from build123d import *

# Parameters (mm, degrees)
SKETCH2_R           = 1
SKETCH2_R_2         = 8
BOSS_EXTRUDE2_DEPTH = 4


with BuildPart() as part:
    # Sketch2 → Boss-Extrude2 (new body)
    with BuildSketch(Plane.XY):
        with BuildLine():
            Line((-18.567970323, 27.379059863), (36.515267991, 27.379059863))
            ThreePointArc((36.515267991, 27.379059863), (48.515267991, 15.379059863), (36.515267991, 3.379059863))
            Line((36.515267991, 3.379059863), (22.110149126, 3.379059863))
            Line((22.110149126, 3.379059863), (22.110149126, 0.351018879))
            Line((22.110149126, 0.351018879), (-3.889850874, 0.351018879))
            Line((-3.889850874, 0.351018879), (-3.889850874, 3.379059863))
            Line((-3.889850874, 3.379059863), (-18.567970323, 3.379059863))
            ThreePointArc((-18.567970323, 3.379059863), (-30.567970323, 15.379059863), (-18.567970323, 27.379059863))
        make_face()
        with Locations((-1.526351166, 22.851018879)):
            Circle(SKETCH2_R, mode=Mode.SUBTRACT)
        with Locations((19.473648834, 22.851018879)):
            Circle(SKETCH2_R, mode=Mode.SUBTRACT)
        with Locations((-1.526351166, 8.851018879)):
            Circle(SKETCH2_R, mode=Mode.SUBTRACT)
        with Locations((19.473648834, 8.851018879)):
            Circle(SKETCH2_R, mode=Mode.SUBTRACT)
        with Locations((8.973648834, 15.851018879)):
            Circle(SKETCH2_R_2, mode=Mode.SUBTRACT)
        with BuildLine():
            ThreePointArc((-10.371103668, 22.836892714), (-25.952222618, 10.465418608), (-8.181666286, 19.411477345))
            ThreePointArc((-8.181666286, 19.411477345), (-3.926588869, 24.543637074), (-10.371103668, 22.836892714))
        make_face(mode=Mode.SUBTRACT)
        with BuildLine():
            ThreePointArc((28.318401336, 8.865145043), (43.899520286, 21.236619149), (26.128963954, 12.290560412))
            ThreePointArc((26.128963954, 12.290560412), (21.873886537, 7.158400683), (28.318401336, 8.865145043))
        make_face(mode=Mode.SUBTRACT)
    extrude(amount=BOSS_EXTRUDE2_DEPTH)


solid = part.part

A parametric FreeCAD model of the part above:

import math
import FreeCAD as App
import Part
import Sketcher
from FreeCAD import Vector
Q = App.Units.Quantity

doc = App.newDocument("Part")
body = doc.addObject("PartDesign::Body", "Body")

# Sketch on XY plane
sketch1 = body.newObject("Sketcher::SketchObject", "Sketch")
sketch1.AttachmentSupport = (doc.getObject("XY_Plane"), [""])
sketch1.MapMode = "FlatFace"
sketch1.addGeometry([
    Part.LineSegment(Vector(36.515268, 27.37906, 0), Vector(-18.56797, 27.37906, 0)),  # 0
    Part.ArcOfCircle(Part.Circle(Vector(-18.56797, 15.37906, 0), Vector(0, 0, 1), 12), math.radians(90), math.radians(270)),  # 1
    Part.LineSegment(Vector(-18.56797, 3.37906, 0), Vector(-3.889851, 3.37906, 0)),  # 2
    Part.LineSegment(Vector(-3.889851, 3.37906, 0), Vector(-3.889851, 0.351019, 0)),  # 3
    Part.LineSegment(Vector(-3.889851, 0.351019, 0), Vector(22.110149, 0.351019, 0)),  # 4
    Part.LineSegment(Vector(22.110149, 0.351019, 0), Vector(22.110149, 3.37906, 0)),  # 5
    Part.LineSegment(Vector(22.110149, 3.37906, 0), Vector(36.515268, 3.37906, 0)),  # 6
    Part.ArcOfCircle(Part.Circle(Vector(36.515268, 15.37906, 0), Vector(0, 0, 1), 12), math.radians(-90), math.radians(90)),  # 7
    Part.Circle(Vector(19.473649, 8.851019, 0), Vector(0, 0, 1), 1),  # 8
    Part.ArcOfCircle(Part.Circle(Vector(24.822942, 9.043361, 0), Vector(0, 0, 1), 3.5), math.radians(68.090028), math.radians(357.081307)),  # 9
    Part.ArcOfCircle(Part.Circle(Vector(35.473649, 15.851019, 0), Vector(0, 0, 1), 10), math.radians(-135.686221), math.radians(200.857556)),  # 10
    Part.Circle(Vector(-1.526351, 8.851019, 0), Vector(0, 0, 1), 1),  # 11
    Part.Circle(Vector(8.973649, 15.851019, 0), Vector(0, 0, 1), 8),  # 12
    Part.Circle(Vector(19.473649, 22.851019, 0), Vector(0, 0, 1), 1),  # 13
    Part.ArcOfCircle(Part.Circle(Vector(-6.875644, 22.658677, 0), Vector(0, 0, 1), 3.5), math.radians(-111.909972), math.radians(177.081307)),  # 14
    Part.ArcOfCircle(Part.Circle(Vector(-17.526351, 15.851019, 0), Vector(0, 0, 1), 10), math.radians(44.313779), math.radians(380.857556)),  # 15
    Part.Circle(Vector(-1.526351, 22.851019, 0), Vector(0, 0, 1), 1),  # 16
], False)
sketch1.addConstraint([
    Sketcher.Constraint("Tangent", 0, 2, 1, 1),
    Sketcher.Constraint("Tangent", 1, 2, 2, 1),
    Sketcher.Constraint("Coincident", 2, 2, 3, 1),
    Sketcher.Constraint("Coincident", 3, 2, 4, 1),
    Sketcher.Constraint("Coincident", 4, 2, 5, 1),
    Sketcher.Constraint("Coincident", 5, 2, 6, 1),
    Sketcher.Constraint("Tangent", 6, 2, 7, 1),
    Sketcher.Constraint("Tangent", 7, 2, 0, 1),
    Sketcher.Constraint("Coincident", 9, 1, 10, 2),
    Sketcher.Constraint("Coincident", 10, 1, 9, 2),
    Sketcher.Constraint("Coincident", 14, 1, 15, 2),
    Sketcher.Constraint("Coincident", 15, 1, 14, 2),
    Sketcher.Constraint("Horizontal", 0),
    Sketcher.Constraint("Horizontal", 2),
    Sketcher.Constraint("Vertical", 3),
    Sketcher.Constraint("Horizontal", 4),
    Sketcher.Constraint("Vertical", 5),
    Sketcher.Constraint("Horizontal", 6),
    Sketcher.Constraint("Equal", 1, 7),
    Sketcher.Constraint("Equal", 8, 11),
    Sketcher.Constraint("Equal", 11, 13),
    Sketcher.Constraint("Equal", 9, 14),
    Sketcher.Constraint("Equal", 10, 15),
    Sketcher.Constraint("Equal", 13, 16),
    Sketcher.Constraint("Horizontal", 8, 3, 11, 3),
    Sketcher.Constraint("Horizontal", 10, 3, 12, 3),
    Sketcher.Constraint("Horizontal", 12, 3, 15, 3),
    Sketcher.Constraint("Horizontal", 13, 3, 16, 3),
    Sketcher.Constraint("Vertical", 8, 3, 13, 3),
    Sketcher.Constraint("Vertical", 11, 3, 16, 3),
    Sketcher.Constraint("Diameter", 8, Q("2 mm")),
    Sketcher.Constraint("Diameter", 12, Q("16 mm")),
    Sketcher.Constraint("Radius", 1, Q("12 mm")),
    Sketcher.Constraint("Radius", 10, Q("10 mm")),
    Sketcher.Constraint("Radius", 9, Q("3.5 mm")),
    Sketcher.Constraint("DistanceX", 4, 1, 4, 2, Q("26 mm")),
    Sketcher.Constraint("DistanceX", 8, 3, 10, 3, Q("16 mm")),
    Sketcher.Constraint("DistanceY", 8, 3, 10, 3, Q("7 mm")),
    Sketcher.Constraint("DistanceX", 11, 3, 8, 3, Q("21 mm")),
    Sketcher.Constraint("DistanceY", 12, 3, 13, 3, Q("7 mm")),
    Sketcher.Constraint("DistanceX", 15, 3, 11, 3, Q("16 mm")),
    Sketcher.Constraint("DistanceX", 12, 3, 8, 3, Q("10.5 mm")),
    Sketcher.Constraint("DistanceY", 3, 2, 11, 3, Q("8.5 mm")),
    Sketcher.Constraint("DistanceX", 0, 2, 0, 1, Q("55.083238 mm")),
    Sketcher.Constraint("DistanceX", 2, 1, 2, 2, Q("14.678119 mm")),
    Sketcher.Constraint("DistanceY", 3, 2, 3, 1, Q("3.028041 mm")),
    Sketcher.Constraint("DistanceX", -1, 1, 10, 1, Q("28.318401 mm")),
    Sketcher.Constraint("DistanceY", 9, 3, 7, 3, Q("6.335699 mm")),
    Sketcher.Constraint("DistanceX", 2, 2, 11, 3, Q("2.3635 mm")),
    Sketcher.Constraint("DistanceY", 9, 3, 9, 1, Q("3.2472 mm")),
    Sketcher.Constraint("DistanceY", 14, 1, 14, 3, Q("3.2472 mm")),
    Sketcher.Constraint("DistanceY", -1, 1, 1, 3, Q("15.37906 mm")),
    Sketcher.Constraint("DistanceY", 11, 3, 14, 3, Q("13.807658 mm")),
])
pad1 = body.newObject("PartDesign::Pad", "Pad")
pad1.Profile = sketch1
pad1.Length = 4

doc.recompute()
